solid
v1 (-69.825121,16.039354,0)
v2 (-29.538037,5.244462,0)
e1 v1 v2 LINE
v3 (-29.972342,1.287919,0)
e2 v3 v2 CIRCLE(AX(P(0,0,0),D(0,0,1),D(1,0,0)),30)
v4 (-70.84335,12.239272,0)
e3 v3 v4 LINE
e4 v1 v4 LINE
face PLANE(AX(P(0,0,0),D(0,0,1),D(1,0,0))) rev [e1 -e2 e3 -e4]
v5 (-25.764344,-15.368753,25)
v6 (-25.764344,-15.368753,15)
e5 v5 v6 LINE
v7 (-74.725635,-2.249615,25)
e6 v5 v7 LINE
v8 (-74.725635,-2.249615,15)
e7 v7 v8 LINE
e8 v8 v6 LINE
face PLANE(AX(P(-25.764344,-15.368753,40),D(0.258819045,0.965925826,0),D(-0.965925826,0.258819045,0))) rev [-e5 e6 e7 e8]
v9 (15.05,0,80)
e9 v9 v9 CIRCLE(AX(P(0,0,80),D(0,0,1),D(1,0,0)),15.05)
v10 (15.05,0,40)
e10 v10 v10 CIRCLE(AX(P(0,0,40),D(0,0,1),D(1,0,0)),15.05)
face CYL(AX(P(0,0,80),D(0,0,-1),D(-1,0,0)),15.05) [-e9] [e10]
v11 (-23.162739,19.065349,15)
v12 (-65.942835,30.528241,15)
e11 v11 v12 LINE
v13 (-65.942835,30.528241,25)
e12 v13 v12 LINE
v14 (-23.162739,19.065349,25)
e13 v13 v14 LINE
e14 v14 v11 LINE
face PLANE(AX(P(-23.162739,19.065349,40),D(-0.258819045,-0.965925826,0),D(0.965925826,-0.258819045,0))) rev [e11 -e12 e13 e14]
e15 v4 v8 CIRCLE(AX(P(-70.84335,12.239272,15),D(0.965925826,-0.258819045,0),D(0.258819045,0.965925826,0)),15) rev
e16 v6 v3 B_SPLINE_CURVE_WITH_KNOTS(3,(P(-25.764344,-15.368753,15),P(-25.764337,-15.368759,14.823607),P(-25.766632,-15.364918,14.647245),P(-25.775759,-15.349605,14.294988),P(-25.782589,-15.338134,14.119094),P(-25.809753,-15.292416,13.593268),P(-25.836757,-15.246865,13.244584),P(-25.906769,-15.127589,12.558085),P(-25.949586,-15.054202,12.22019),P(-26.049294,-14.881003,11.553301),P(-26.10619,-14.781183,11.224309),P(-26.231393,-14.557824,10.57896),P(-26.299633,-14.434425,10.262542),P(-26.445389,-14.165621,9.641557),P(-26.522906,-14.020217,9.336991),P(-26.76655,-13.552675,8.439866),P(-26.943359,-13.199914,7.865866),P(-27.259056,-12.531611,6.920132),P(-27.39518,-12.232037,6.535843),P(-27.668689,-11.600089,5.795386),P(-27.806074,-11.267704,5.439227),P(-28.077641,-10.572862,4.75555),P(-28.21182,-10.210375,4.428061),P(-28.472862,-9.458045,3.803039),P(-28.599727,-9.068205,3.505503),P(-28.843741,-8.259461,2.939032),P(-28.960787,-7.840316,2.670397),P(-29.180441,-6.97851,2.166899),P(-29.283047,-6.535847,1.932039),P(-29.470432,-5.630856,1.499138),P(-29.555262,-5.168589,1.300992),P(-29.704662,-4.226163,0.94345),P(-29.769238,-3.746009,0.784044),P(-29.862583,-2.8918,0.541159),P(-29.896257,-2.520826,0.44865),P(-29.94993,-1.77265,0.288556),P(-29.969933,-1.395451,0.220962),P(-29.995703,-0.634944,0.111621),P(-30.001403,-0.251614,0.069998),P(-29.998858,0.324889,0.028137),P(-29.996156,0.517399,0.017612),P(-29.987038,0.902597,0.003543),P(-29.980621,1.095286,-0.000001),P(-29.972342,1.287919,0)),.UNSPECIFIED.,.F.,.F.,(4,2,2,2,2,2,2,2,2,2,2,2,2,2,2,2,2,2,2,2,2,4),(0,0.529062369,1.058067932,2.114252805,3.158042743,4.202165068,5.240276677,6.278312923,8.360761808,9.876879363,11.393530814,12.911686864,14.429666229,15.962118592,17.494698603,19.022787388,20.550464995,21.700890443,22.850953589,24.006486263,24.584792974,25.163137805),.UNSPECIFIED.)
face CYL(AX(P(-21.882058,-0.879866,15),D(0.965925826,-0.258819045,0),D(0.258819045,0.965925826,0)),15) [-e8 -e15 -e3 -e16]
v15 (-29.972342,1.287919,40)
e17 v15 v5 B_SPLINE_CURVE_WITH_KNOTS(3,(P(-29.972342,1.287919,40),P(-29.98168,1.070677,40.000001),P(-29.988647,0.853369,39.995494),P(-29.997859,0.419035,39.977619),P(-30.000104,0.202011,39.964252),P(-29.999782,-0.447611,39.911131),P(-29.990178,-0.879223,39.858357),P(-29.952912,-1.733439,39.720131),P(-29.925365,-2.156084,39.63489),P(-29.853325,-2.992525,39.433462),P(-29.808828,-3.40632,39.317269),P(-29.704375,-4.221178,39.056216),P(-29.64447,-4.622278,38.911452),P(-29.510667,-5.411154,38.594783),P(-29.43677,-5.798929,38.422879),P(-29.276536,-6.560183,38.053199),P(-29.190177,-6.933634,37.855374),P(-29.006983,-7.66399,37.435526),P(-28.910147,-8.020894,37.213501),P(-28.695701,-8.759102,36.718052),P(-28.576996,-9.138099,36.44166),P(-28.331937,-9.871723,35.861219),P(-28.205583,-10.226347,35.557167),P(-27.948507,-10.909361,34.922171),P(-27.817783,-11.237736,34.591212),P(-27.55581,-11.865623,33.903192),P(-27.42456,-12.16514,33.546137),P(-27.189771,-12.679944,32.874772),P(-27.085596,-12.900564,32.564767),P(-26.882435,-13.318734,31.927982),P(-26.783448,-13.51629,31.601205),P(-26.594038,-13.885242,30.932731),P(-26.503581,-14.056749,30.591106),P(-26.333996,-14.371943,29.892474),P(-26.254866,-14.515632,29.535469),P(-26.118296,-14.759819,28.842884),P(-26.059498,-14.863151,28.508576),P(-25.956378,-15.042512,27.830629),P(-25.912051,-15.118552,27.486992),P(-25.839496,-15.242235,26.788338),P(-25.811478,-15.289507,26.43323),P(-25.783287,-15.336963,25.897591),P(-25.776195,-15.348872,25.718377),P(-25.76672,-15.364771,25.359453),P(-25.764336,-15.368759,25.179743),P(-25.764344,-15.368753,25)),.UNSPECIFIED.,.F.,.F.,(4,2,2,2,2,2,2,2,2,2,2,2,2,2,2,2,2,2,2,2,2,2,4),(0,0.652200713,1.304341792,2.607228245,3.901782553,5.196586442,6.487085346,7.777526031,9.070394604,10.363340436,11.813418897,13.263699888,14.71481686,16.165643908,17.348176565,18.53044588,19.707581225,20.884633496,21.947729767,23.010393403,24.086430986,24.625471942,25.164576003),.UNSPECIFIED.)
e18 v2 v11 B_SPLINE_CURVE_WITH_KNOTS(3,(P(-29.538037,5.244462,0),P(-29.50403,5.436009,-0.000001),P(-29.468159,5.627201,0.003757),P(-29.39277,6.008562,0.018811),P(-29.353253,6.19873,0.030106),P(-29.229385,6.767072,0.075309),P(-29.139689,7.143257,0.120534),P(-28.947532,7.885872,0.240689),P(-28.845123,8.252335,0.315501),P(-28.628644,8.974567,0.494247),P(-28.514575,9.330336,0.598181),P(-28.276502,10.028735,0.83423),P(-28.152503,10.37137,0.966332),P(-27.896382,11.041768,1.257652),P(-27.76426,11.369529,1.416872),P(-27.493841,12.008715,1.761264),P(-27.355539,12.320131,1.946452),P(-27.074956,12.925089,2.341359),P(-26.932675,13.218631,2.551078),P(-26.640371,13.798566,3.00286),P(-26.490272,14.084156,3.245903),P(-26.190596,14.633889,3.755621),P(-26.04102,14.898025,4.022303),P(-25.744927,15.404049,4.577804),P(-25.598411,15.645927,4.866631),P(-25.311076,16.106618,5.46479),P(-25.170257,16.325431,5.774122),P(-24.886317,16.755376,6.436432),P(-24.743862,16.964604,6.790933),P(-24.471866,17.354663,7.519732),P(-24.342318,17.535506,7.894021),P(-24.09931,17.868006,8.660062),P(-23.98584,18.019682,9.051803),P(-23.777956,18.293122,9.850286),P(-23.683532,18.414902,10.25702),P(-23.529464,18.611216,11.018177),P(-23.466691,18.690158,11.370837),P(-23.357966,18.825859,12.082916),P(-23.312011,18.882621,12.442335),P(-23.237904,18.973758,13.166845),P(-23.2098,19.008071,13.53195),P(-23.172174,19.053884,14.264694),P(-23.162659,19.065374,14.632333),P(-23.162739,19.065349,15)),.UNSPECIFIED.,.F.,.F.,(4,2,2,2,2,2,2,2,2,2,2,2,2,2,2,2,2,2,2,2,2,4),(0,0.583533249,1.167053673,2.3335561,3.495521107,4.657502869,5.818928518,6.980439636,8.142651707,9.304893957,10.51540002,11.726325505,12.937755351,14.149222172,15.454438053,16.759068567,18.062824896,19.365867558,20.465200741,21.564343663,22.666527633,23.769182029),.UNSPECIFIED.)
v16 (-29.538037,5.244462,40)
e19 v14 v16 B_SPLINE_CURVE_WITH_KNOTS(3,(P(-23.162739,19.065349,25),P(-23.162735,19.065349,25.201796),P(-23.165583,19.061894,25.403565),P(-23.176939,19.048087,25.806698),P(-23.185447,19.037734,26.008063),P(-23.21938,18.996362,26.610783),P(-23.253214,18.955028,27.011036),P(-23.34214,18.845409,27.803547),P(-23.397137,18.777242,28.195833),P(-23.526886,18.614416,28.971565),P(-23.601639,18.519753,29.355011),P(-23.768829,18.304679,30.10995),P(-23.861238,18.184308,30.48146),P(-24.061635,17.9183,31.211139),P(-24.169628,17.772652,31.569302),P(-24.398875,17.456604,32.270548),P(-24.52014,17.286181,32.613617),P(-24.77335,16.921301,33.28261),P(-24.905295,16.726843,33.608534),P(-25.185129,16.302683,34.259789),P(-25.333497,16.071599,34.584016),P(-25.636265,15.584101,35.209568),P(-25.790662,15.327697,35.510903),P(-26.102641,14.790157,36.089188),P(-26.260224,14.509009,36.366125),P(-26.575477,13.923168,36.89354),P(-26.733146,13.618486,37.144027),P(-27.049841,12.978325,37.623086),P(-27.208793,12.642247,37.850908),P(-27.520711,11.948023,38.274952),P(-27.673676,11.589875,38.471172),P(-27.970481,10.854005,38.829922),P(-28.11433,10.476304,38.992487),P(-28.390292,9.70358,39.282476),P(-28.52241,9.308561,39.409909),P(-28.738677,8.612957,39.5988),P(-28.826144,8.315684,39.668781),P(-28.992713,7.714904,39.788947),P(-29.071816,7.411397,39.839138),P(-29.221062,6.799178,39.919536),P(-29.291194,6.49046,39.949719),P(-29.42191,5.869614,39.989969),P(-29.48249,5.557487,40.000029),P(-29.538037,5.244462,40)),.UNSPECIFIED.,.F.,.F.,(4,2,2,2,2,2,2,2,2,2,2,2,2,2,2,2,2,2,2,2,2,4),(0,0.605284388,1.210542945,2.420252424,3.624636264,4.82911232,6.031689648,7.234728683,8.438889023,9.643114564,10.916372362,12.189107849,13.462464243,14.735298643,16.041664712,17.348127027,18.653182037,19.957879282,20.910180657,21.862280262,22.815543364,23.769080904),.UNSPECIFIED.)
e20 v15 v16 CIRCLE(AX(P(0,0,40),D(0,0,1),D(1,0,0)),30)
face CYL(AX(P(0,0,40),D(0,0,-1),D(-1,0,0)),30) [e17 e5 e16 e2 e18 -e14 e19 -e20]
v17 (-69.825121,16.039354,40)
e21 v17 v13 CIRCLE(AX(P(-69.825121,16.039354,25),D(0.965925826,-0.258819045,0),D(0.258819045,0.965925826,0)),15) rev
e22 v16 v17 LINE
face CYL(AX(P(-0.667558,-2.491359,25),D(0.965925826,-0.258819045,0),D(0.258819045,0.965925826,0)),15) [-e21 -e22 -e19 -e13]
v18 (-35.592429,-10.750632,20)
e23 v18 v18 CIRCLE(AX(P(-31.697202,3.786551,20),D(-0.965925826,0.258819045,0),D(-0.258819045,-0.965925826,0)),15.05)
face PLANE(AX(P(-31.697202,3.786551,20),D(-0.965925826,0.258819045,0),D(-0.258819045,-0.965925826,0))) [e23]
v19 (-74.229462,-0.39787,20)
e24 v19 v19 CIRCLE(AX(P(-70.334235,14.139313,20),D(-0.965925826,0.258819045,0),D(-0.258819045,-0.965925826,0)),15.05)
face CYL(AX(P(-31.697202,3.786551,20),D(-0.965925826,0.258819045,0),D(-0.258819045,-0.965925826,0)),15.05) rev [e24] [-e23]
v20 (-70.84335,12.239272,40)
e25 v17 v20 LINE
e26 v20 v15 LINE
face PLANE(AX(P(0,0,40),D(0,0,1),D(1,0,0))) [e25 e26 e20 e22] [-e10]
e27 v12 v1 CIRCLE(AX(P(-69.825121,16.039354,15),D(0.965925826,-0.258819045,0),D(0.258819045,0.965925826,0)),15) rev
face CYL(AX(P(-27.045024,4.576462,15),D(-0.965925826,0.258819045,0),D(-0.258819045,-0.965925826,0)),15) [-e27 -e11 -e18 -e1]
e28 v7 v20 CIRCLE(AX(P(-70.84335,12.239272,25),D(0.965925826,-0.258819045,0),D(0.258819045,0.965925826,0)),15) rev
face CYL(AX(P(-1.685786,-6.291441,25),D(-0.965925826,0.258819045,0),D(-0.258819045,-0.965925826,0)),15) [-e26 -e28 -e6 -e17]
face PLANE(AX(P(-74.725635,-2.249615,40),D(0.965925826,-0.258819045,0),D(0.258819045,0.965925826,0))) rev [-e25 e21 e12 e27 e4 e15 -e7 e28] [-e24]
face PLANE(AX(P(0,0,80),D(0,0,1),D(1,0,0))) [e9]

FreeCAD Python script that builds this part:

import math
import FreeCAD as App
import Part
import Sketcher
Q = App.Units.Quantity


def edges_at(feature, points):
    """Names of the edges that pass closest to the given points."""
    edges = feature.Shape.Edges
    near = lambda p: min(range(len(edges)), key=lambda i: edges[i].distToShape(Part.Vertex(*p))[0])
    return sorted({f"Edge{near(p) + 1}" for p in points})

doc = App.newDocument("Part")
body = doc.addObject("PartDesign::Body", "Body")

sketch1 = body.newObject("Sketcher::SketchObject", "Sketch")
sketch1.AttachmentSupport = (doc.getObject("XY_Plane"), [""])
sketch1.MapMode = "FlatFace"
sketch1.addGeometry([
    Part.LineSegment(App.Vector(-23, 19, 0), App.Vector(-66, 31, 0)),
    Part.LineSegment(App.Vector(-66, 31, 0), App.Vector(-75, -2, 0)),
    Part.LineSegment(App.Vector(-75, -2, 0), App.Vector(-26, -15, 0)),
    Part.ArcOfCircle(Part.Circle(App.Vector(0, 0, 0), App.Vector(0, 0, 1), 30), math.radians(-149), math.radians(141)),
], False)
sketch1.addConstraint([
    Sketcher.Constraint("Coincident", 0, 2, 1, 1),
    Sketcher.Constraint("Coincident", 1, 2, 2, 1),
    Sketcher.Constraint("Coincident", 2, 2, 3, 1),
    Sketcher.Constraint("Coincident", 3, 2, 0, 1),
    Sketcher.Constraint("Coincident", 3, 3, -1, 1),
    Sketcher.Constraint("Perpendicular", 0, 1),
    Sketcher.Constraint("Perpendicular", 1, 2),
    Sketcher.Constraint("Radius", 3, 30.0),
    Sketcher.Constraint("Angle", 0, Q("165 deg")),
    Sketcher.Constraint("DistanceX", 1, 2, 0, 2, 8.7828),
    Sketcher.Constraint("Distance", 2, 50.688459),
    Sketcher.Constraint("DistanceY", -1, 1, 0, 2, 30.528241),
])
pad1 = body.newObject("PartDesign::Pad", "Pad")
pad1.Profile = sketch1
pad1.Length = 40

sketch2 = body.newObject("Sketcher::SketchObject", "Sketch001")
sketch2.Placement = App.Placement(App.Vector(-69.157563, 18.530713, 0), App.Rotation(App.Vector(0, 0, 1), App.Vector(0.258819045, 0.965925826, 0), App.Vector(-0.965925826, 0.258819045, 0), "ZXY"))
sketch2.addGeometry(Part.Circle(App.Vector(20, -5, 0), App.Vector(0, 0, 1), 15), False)
sketch2.addConstraint([
    Sketcher.Constraint("Diameter", 0, 30.1),
    Sketcher.Constraint("DistanceX", -1, 1, 0, 3, 20.0),
    Sketcher.Constraint("DistanceY", 0, 3, -1, 1, 4.546312),
])
pocket1 = body.newObject("PartDesign::Pocket", "Pocket")
pocket1.Profile = sketch2
pocket1.Length = 40
doc.recompute()

fillet = body.newObject("PartDesign::Fillet", "Fillet")
fillet.Base = (pocket1, edges_at(pocket1, [
    (-50.245, -8.809, 40),
    (-50.245, -8.809, 0),
    (-44.553, 24.797, 0),
    (-44.553, 24.797, 40),
]))
fillet.Radius = 15

sketch3 = body.newObject("Sketcher::SketchObject", "Sketch002")
sketch3.AttachmentSupport = (doc.getObject("XY_Plane"), [""])
sketch3.MapMode = "FlatFace"
sketch3.AttachmentOffset = App.Placement(App.Vector(0, 0, 40), App.Rotation())
sketch3.addGeometry(Part.Circle(App.Vector(0, 0, 0), App.Vector(0, 0, 1), 15), False)
sketch3.addConstraint([
    Sketcher.Constraint("Coincident", 0, 3, -1, 1),
    Sketcher.Constraint("Diameter", 0, 30.1),
])
pad2 = body.newObject("PartDesign::Pad", "Pad001")
pad2.Profile = sketch3
pad2.Length = 40

doc.recompute()
